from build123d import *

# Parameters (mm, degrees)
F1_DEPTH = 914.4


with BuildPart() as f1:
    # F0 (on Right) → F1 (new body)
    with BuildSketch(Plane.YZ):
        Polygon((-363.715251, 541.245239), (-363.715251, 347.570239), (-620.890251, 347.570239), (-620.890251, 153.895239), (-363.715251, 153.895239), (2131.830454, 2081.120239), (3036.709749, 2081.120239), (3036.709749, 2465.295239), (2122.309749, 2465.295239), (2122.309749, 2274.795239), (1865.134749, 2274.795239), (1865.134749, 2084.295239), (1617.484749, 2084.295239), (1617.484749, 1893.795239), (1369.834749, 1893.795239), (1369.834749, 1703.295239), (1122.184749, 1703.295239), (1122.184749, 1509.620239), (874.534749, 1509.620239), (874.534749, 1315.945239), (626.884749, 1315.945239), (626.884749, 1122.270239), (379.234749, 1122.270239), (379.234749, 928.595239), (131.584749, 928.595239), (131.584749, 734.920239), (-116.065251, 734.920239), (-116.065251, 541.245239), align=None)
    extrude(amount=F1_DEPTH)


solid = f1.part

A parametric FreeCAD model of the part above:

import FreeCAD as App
import Part
import Sketcher

V = App.Vector
Q = App.Units.Quantity


def add_polygon(sketch, points):
    """Adds a closed chain of lines whose ends are joined by coincident constraints."""
    first, n = sketch.GeometryCount, len(points)
    for a, b in zip(points, points[1:] + points[:1]):
        sketch.addGeometry(Part.LineSegment(App.Vector(*a, 0), App.Vector(*b, 0)), False)
    for i in range(n):
        sketch.addConstraint(Sketcher.Constraint("Coincident", first + i, 2, first + (i + 1) % n, 1))

doc = App.newDocument("Part")
body = doc.addObject("PartDesign::Body", "Body")

sketch1 = body.newObject("Sketcher::SketchObject", "Sketch")
sketch1.AttachmentSupport = (doc.getObject("YZ_Plane"), [""])
sketch1.MapMode = "FlatFace"
add_polygon(sketch1, [(-363.715251, 541.245239), (-363.715251, 347.570239), (-620.890251, 347.570239), (-620.890251, 153.895239), (-363.715251, 153.895239), (2131.830454, 2081.120239), (3036.709749, 2081.120239), (3036.709749, 2465.295239), (2122.309749, 2465.295239), (2122.309749, 2274.795239), (1865.134749, 2274.795239), (1865.134749, 2084.295239), (1617.484749, 2084.295239), (1617.484749, 1893.795239), (1369.834749, 1893.795239), (1369.834749, 1703.295239), (1122.184749, 1703.295239), (1122.184749, 1509.620239), (874.534749, 1509.620239), (874.534749, 1315.945239), (626.884749, 1315.945239), (626.884749, 1122.270239), (379.234749, 1122.270239), (379.234749, 928.595239), (131.584749, 928.595239), (131.584749, 734.920239), (-116.065251, 734.920239), (-116.065251, 541.245239)])
sketch1.addConstraint([
    Sketcher.Constraint("Vertical", 0),
    Sketcher.Constraint("Horizontal", 1),
    Sketcher.Constraint("Vertical", 2),
    Sketcher.Constraint("Horizontal", 3),
    Sketcher.Constraint("Horizontal", 5),
    Sketcher.Constraint("Vertical", 6),
    Sketcher.Constraint("Horizontal", 7),
    Sketcher.Constraint("Vertical", 8),
    Sketcher.Constraint("Horizontal", 9),
    Sketcher.Constraint("Vertical", 10),
    Sketcher.Constraint("Horizontal", 11),
    Sketcher.Constraint("Vertical", 12),
    Sketcher.Constraint("Horizontal", 13),
    Sketcher.Constraint("Vertical", 14),
    Sketcher.Constraint("Horizontal", 15),
    Sketcher.Constraint("Vertical", 16),
    Sketcher.Constraint("Horizontal", 17),
    Sketcher.Constraint("Vertical", 18),
    Sketcher.Constraint("Horizontal", 19),
    Sketcher.Constraint("Vertical", 20),
    Sketcher.Constraint("Horizontal", 21),
    Sketcher.Constraint("Vertical", 22),
    Sketcher.Constraint("Horizontal", 23),
    Sketcher.Constraint("Vertical", 24),
    Sketcher.Constraint("Horizontal", 25),
    Sketcher.Constraint("Vertical", 26),
    Sketcher.Constraint("Horizontal", 27),
    Sketcher.Constraint("Vertical", 0, 2, 3, 2),
    Sketcher.Constraint("Equal", 3, 9),
    Sketcher.Constraint("Equal", 11, 13),
    Sketcher.Constraint("Equal", 13, 15),
    Sketcher.Constraint("Equal", 15, 17),
    Sketcher.Constraint("Equal", 17, 19),
    Sketcher.Constraint("Equal", 19, 21),
    Sketcher.Constraint("Equal", 21, 23),
    Sketcher.Constraint("Equal", 23, 25),
    Sketcher.Constraint("Equal", 25, 27),
    Sketcher.Constraint("Equal", 0, 2),
    Sketcher.Constraint("Equal", 8, 10),
    Sketcher.Constraint("Equal", 10, 12),
    Sketcher.Constraint("Equal", 12, 14),
    Sketcher.Constraint("Equal", 2, 16),
    Sketcher.Constraint("Equal", 16, 18),
    Sketcher.Constraint("Equal", 18, 20),
    Sketcher.Constraint("Equal", 20, 22),
    Sketcher.Constraint("Equal", 22, 24),
    Sketcher.Constraint("Equal", 24, 26),
    Sketcher.Constraint("DistanceX", 7, 2, 7, 1, Q("36 in")),
    Sketcher.Constraint("DistanceY", 8, 2, 8, 1, Q("7.5 in")),
    Sketcher.Constraint("DistanceX", 1, 2, 5, 2, Q("144 in")),
    Sketcher.Constraint("DistanceY", 3, 2, 6, 2, Q("91 in")),
    Sketcher.Constraint("DistanceX", 11, 2, 11, 1, Q("9.75 in")),
    Sketcher.Constraint("DistanceY", 6, 1, 6, 2, Q("15.125 in")),
    Sketcher.Constraint("Distance", 4, 3153.084929),
    Sketcher.Constraint("DistanceX", 0, 2, -1, 1, 363.715251),
    Sketcher.Constraint("DistanceY", -1, 1, 0, 2, 347.570239),
])
pad1 = body.newObject("PartDesign::Pad", "Pad")
pad1.Profile = sketch1
pad1.Length = Q("36 in")

doc.recompute()
